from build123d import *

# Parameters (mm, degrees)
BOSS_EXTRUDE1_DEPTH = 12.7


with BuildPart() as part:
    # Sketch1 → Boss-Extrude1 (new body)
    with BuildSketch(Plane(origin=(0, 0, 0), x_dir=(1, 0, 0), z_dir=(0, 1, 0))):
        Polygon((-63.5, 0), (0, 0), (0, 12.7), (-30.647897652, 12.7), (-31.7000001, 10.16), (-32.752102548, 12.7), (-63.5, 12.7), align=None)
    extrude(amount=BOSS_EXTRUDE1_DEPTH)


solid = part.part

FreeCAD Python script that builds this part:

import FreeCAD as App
import Part
import Sketcher
Q = App.Units.Quantity


def add_polygon(sketch, points):
    """Adds a closed chain of lines whose ends are joined by coincident constraints."""
    first, n = sketch.GeometryCount, len(points)
    for a, b in zip(points, points[1:] + points[:1]):
        sketch.addGeometry(Part.LineSegment(App.Vector(*a, 0), App.Vector(*b, 0)), False)
    for i in range(n):
        sketch.addConstraint(Sketcher.Constraint("Coincident", first + i, 2, first + (i + 1) % n, 1))

doc = App.newDocument("Part")
params = doc.addObject("Spreadsheet::Sheet", "Params")
for row, (alias, value) in enumerate([
    ("sketch1_width", "2.5 in"),
    ("sketch1_height", "0.5 in"),
    ("pad1_length", "0.5 in"),
], start=1):
    params.set(f"A{row}", alias)
    params.set(f"B{row}", "=" + value)
    params.setAlias(f"B{row}", alias)

body = doc.addObject("PartDesign::Body", "Body")

sketch1 = doc.addObject("Sketcher::SketchObject", "Sketch")
body.addObject(sketch1)
sketch1.AttachmentSupport = (doc.XZ_Plane, [""])
sketch1.MapMode = "FlatFace"
add_polygon(sketch1, [(-63.5, 0), (0, 0), (0, -12.7), (-30.6, -12.7), (-31.7, -10.2), (-32.8, -12.7), (-63.5, -12.7)])
sketch1.addConstraint([
    Sketcher.Constraint("Horizontal", 0),
    Sketcher.Constraint("Vertical", 1),
    Sketcher.Constraint("Horizontal", 2),
    Sketcher.Constraint("Horizontal", 5),
    Sketcher.Constraint("Vertical", 6),
    Sketcher.Constraint("Coincident", 0, 2, -1, 1),
    Sketcher.Constraint("Horizontal", 2, 2, 4, 2),
    Sketcher.Constraint("Equal", 3, 4),
    Sketcher.Constraint("DistanceX", 0, 1, 0, 2, Q("2.5 in")),
    Sketcher.Constraint("DistanceY", 1, 2, 1, 1, Q("0.5 in")),
    Sketcher.Constraint("DistanceY", 3, 2, -1, 1, Q("0.4 in")),
    Sketcher.Constraint("Angle", 3, Q("112.5 deg")),
    Sketcher.Constraint("DistanceX", 3, 2, -1, 1, 31.7),
])
sketch1.setExpression("Constraints[15]", "Params.sketch1_width")
sketch1.setExpression("Constraints[16]", "Params.sketch1_height")
pad1 = doc.addObject("PartDesign::Pad", "Pad")
body.addObject(pad1)
pad1.Profile = sketch1
pad1.setExpression("Length", "Params.pad1_length")
pad1.Reversed = True

doc.recompute()
